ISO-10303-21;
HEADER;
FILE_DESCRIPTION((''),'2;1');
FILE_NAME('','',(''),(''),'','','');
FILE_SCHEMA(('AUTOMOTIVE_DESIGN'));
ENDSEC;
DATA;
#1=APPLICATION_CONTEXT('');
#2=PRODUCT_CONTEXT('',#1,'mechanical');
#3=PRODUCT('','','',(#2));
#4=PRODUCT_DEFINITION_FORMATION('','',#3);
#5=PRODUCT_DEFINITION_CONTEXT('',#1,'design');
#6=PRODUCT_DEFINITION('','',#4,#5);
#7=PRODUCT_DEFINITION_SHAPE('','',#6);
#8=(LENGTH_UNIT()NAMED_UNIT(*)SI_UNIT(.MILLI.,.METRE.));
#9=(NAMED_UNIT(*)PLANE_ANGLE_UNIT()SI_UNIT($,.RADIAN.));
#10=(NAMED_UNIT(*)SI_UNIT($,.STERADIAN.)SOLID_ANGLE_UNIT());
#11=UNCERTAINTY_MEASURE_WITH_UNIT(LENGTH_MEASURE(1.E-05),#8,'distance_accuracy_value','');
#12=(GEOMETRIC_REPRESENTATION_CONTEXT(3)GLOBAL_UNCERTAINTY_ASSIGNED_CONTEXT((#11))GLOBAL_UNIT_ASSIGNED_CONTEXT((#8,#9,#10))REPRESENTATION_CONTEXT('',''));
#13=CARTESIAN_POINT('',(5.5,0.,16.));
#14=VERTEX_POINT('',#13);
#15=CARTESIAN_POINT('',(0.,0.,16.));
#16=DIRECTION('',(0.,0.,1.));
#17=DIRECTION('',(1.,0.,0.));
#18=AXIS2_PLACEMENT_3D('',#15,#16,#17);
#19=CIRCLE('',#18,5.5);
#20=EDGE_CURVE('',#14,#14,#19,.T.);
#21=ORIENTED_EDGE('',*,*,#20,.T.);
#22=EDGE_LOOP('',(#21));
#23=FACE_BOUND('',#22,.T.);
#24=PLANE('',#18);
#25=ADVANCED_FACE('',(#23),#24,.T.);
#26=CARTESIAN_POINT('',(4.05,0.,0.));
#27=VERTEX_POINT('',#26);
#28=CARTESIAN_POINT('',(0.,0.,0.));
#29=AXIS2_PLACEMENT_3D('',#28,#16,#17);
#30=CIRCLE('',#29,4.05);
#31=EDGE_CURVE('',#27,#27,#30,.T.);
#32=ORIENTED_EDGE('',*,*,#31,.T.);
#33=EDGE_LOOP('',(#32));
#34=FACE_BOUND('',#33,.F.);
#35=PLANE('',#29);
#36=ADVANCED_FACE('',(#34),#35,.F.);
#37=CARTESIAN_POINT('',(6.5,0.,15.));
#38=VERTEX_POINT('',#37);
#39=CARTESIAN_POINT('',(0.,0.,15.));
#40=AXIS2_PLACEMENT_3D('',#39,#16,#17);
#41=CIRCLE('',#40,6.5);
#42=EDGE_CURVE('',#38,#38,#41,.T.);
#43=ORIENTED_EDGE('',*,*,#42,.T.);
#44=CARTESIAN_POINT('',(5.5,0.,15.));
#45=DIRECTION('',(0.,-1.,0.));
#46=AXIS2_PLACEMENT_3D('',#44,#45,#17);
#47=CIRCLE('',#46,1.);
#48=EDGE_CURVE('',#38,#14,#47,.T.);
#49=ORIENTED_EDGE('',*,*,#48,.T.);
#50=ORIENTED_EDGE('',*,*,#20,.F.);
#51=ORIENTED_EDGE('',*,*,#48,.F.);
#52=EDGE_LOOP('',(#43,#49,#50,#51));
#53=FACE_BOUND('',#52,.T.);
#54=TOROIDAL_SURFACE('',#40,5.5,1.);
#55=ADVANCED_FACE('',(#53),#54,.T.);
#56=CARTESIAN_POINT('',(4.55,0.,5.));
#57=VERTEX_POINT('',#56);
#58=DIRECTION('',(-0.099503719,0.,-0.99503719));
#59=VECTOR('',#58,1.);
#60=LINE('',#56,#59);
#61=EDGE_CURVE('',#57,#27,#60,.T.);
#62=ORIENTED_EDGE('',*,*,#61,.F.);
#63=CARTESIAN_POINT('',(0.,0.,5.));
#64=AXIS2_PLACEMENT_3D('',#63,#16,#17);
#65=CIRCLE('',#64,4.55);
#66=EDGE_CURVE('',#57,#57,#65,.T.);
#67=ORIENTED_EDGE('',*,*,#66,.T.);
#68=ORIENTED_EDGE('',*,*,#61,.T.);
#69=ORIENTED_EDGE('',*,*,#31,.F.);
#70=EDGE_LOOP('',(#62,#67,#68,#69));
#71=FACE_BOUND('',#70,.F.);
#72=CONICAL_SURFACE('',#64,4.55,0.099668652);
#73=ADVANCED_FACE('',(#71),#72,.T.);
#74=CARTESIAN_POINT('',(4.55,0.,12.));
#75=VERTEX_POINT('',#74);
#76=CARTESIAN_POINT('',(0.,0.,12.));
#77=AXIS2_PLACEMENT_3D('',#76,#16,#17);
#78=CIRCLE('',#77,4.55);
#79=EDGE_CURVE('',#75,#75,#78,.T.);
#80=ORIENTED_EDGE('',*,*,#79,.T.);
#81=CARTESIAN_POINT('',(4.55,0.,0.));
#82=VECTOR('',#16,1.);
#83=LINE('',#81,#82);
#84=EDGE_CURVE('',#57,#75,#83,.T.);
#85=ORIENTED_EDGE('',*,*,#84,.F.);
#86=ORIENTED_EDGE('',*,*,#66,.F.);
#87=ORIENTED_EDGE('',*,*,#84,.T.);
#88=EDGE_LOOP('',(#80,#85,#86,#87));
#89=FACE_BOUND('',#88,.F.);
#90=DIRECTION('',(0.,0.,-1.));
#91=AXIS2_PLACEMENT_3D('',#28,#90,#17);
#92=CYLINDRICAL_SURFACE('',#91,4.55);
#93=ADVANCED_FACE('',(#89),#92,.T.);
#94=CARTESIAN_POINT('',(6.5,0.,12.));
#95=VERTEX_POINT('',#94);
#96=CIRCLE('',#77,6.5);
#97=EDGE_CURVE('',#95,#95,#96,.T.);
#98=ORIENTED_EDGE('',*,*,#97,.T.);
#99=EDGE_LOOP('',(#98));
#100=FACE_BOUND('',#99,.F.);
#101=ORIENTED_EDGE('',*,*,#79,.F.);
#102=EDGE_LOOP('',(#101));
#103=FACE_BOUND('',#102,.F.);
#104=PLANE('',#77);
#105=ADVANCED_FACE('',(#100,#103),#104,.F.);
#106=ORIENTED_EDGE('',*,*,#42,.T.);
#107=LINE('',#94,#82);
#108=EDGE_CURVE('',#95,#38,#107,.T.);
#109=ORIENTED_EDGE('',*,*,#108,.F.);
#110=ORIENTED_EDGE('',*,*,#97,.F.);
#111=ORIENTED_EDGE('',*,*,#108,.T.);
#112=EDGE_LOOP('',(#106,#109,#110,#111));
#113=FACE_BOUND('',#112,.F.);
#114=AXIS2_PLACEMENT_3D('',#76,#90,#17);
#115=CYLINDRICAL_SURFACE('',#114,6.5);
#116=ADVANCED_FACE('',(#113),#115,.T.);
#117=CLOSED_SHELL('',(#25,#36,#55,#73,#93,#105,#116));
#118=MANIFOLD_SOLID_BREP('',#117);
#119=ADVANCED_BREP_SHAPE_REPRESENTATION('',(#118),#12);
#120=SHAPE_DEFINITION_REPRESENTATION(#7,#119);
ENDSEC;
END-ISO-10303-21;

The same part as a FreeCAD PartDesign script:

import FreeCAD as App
import Part
import Sketcher

V = App.Vector
Q = App.Units.Quantity


def edges_at(feature, points):
    """Names of the edges that pass closest to the given points."""
    edges = feature.Shape.Edges
    near = lambda p: min(range(len(edges)), key=lambda i: edges[i].distToShape(Part.Vertex(*p))[0])
    return sorted({f"Edge{near(p) + 1}" for p in points})

doc = App.newDocument("Part")
params = doc.addObject("Spreadsheet::Sheet", "Params")
for row, (alias, value) in enumerate([
    ("sketch1_diameter", "9.1 mm"),
    ("pad1_length", "12 mm"),
    ("chamfer_size", "5 mm"),
    ("chamfer_size2", "0.5 mm"),
    ("sketch2_diameter", "13 mm"),
    ("pad2_length", "4 mm"),
    ("fillet_radius", "1 mm"),
], start=1):
    params.set(f"A{row}", alias)
    params.set(f"B{row}", "=" + value)
    params.setAlias(f"B{row}", alias)

body = doc.addObject("PartDesign::Body", "Body")

# Sketch on XY plane
sketch1 = body.newObject("Sketcher::SketchObject", "Sketch")
sketch1.AttachmentSupport = (doc.getObject("XY_Plane"), [""])
sketch1.MapMode = "FlatFace"
sketch1.addGeometry(Part.Circle(V(0, 0, 0), V(0, 0, 1), 4.5), False)
sketch1.addConstraint([
    Sketcher.Constraint("Coincident", 0, 3, -1, 1),
    Sketcher.Constraint("Diameter", 0, Q("9.1 mm")),
])
sketch1.setExpression("Constraints[1]", "Params.sketch1_diameter")
pad1 = body.newObject("PartDesign::Pad", "Pad")
pad1.Profile = sketch1
pad1.setExpression("Length", "Params.pad1_length")
doc.recompute()

chamfer = body.newObject("PartDesign::Chamfer", "Chamfer")
chamfer.Base = (pad1, edges_at(pad1, [(-4.55, 0, 0)]))
chamfer.ChamferType = "Two distances"
chamfer.setExpression("Size", "Params.chamfer_size")
chamfer.setExpression("Size2", "Params.chamfer_size2")

# Sketch on XY plane
sketch2 = body.newObject("Sketcher::SketchObject", "Sketch001")
sketch2.AttachmentSupport = (doc.getObject("XY_Plane"), [""])
sketch2.MapMode = "FlatFace"
sketch2.AttachmentOffset = App.Placement(V(0, 0, 12), App.Rotation())
sketch2.addGeometry(Part.Circle(V(0, 0, 0), V(0, 0, 1), 6), False)
sketch2.addConstraint([
    Sketcher.Constraint("Coincident", 0, 3, -1, 1),
    Sketcher.Constraint("Diameter", 0, Q("13 mm")),
])
sketch2.setExpression("Constraints[1]", "Params.sketch2_diameter")
pad2 = body.newObject("PartDesign::Pad", "Pad001")
pad2.Profile = sketch2
pad2.setExpression("Length", "Params.pad2_length")
doc.recompute()

fillet = body.newObject("PartDesign::Fillet", "Fillet")
fillet.Base = (pad2, edges_at(pad2, [(-6.5, 0, 16)]))
fillet.setExpression("Radius", "Params.fillet_radius")

doc.recompute()
